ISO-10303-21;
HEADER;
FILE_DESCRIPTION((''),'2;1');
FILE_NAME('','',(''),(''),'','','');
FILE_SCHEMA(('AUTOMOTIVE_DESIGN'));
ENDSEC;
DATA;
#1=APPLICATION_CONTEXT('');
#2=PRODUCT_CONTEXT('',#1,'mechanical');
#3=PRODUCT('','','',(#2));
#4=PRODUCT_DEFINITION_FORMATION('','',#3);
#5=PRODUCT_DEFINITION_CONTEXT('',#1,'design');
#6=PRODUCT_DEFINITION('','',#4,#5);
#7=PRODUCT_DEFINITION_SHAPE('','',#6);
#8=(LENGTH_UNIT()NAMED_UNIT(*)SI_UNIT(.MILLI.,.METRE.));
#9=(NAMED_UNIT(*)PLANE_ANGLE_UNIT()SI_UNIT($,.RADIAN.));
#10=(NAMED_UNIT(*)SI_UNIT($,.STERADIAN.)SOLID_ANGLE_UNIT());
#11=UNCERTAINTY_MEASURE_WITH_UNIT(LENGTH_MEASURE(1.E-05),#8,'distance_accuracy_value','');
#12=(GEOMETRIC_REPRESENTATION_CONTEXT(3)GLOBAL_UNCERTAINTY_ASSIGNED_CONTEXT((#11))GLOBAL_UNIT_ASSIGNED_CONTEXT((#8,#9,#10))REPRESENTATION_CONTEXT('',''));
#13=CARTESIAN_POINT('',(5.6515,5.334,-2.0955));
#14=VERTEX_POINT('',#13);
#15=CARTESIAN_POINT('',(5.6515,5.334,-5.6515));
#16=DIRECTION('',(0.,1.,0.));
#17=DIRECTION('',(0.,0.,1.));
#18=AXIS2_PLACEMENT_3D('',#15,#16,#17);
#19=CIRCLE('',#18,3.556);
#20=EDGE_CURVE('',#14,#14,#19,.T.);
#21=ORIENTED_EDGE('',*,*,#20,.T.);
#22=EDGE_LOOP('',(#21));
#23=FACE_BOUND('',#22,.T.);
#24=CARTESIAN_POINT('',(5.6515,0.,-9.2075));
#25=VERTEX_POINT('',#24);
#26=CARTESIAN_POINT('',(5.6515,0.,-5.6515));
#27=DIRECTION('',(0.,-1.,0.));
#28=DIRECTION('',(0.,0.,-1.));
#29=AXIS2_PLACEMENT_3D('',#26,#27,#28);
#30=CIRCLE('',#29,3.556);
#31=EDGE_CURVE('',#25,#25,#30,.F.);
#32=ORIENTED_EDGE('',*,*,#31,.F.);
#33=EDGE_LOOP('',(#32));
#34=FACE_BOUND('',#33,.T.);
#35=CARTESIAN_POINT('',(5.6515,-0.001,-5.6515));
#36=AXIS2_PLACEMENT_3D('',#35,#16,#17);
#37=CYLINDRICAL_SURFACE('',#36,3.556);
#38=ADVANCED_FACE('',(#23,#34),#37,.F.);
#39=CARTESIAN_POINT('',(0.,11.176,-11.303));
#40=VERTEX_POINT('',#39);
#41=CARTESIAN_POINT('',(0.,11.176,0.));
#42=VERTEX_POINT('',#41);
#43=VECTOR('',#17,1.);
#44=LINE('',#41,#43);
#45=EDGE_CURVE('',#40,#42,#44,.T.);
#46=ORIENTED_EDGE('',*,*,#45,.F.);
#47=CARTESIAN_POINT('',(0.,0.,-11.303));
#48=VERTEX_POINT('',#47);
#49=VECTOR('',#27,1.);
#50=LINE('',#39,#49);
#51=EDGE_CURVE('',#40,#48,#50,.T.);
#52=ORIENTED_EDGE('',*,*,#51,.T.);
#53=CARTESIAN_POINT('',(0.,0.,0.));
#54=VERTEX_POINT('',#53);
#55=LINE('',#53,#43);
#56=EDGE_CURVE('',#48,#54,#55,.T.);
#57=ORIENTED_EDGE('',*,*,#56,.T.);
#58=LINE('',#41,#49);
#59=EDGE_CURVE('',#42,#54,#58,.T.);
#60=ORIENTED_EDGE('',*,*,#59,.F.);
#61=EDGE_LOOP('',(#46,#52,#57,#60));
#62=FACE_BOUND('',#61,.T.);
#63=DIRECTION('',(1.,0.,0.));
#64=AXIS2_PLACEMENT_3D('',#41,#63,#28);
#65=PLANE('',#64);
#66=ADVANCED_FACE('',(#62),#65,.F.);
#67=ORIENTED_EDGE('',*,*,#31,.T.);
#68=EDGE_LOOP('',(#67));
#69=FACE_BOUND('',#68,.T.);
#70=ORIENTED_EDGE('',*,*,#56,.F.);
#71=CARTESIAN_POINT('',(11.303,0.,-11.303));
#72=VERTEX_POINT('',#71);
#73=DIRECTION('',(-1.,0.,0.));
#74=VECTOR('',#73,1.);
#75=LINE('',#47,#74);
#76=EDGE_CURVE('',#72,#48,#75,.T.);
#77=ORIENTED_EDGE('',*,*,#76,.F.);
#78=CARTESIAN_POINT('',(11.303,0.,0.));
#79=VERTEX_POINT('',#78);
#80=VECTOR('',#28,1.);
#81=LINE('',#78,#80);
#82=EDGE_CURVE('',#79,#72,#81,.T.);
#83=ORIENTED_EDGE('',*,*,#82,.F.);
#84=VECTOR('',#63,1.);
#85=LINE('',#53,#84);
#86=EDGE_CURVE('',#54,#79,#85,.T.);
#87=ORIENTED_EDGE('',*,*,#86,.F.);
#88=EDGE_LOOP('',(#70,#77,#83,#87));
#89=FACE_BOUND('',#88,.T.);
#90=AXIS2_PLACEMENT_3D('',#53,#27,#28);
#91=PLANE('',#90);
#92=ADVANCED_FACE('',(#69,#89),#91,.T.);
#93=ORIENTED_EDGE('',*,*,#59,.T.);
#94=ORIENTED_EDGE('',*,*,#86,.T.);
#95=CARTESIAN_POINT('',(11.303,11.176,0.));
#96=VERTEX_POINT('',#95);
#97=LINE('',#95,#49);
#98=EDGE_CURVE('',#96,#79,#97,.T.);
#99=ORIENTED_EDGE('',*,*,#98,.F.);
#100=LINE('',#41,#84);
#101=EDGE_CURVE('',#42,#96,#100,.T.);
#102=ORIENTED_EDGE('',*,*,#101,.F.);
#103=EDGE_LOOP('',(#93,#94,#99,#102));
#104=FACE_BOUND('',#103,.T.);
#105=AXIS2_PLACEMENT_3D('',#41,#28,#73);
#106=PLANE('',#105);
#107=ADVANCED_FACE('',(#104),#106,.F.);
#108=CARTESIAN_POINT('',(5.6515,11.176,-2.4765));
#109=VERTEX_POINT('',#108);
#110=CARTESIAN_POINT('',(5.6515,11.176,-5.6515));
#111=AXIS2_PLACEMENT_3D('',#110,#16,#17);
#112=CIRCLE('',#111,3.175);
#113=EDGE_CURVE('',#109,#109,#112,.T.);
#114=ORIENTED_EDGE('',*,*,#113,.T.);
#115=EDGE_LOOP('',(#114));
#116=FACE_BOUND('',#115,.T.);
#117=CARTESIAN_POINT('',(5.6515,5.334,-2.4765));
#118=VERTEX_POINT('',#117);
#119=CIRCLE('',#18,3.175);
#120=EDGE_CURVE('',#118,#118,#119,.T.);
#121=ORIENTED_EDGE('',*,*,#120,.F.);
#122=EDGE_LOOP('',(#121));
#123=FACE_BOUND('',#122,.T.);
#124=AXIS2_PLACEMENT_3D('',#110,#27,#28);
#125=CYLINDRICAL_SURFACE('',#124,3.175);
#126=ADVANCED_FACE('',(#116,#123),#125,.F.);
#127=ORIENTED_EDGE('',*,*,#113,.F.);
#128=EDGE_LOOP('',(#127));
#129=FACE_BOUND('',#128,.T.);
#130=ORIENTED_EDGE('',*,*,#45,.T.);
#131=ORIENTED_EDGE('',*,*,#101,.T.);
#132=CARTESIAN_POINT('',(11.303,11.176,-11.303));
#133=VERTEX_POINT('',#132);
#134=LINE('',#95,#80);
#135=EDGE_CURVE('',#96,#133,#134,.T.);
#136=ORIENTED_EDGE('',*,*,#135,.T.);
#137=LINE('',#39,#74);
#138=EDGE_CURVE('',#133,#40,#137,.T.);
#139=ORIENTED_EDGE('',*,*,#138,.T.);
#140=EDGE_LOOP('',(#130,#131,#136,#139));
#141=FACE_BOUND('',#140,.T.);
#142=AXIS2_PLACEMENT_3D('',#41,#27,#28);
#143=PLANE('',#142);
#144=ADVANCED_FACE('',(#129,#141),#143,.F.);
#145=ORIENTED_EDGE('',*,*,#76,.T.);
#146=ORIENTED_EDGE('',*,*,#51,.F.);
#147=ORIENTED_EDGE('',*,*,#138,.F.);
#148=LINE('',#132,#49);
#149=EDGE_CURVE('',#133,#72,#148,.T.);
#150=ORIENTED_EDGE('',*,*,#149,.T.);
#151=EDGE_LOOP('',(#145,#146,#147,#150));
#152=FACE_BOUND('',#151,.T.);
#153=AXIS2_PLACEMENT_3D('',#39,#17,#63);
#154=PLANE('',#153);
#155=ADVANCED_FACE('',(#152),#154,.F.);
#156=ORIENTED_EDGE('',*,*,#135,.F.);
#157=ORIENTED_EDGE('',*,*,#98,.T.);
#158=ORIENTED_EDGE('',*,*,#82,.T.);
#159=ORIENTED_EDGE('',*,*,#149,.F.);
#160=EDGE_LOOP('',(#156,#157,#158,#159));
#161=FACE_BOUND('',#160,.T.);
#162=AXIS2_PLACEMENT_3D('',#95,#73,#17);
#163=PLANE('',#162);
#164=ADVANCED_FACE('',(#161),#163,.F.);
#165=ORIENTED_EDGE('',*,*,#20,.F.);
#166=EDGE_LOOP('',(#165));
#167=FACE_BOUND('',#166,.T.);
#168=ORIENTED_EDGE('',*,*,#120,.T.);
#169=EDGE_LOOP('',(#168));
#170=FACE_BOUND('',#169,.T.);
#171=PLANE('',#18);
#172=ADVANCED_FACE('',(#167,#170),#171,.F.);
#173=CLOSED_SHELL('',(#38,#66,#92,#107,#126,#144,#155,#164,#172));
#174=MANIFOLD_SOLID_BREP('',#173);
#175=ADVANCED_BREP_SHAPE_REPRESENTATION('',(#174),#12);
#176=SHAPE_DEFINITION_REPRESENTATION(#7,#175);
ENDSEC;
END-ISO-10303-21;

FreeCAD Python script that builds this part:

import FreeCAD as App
import Part
import Sketcher

V = App.Vector
Q = App.Units.Quantity


def add_polygon(sketch, points):
    """Adds a closed chain of lines whose ends are joined by coincident constraints."""
    first, n = sketch.GeometryCount, len(points)
    for a, b in zip(points, points[1:] + points[:1]):
        sketch.addGeometry(Part.LineSegment(App.Vector(*a, 0), App.Vector(*b, 0)), False)
    for i in range(n):
        sketch.addConstraint(Sketcher.Constraint("Coincident", first + i, 2, first + (i + 1) % n, 1))

doc = App.newDocument("Part")
params = doc.addObject("Spreadsheet::Sheet", "Params")
for row, (alias, value) in enumerate([
    ("sketch1_diameter", "0.25 in"),
    ("sketch1_width", "0.445 in"),
    ("pad1_length", "0.44 in"),
    ("sketch2_diameter", "0.28 in"),
    ("sketch2_diameter2", "0.25 in"),
    ("pocket1_length", "0.21 in"),
], start=1):
    params.set(f"A{row}", alias)
    params.set(f"B{row}", "=" + value)
    params.setAlias(f"B{row}", alias)

body = doc.addObject("PartDesign::Body", "Body")

# Sketch on XZ plane
sketch1 = body.newObject("Sketcher::SketchObject", "Sketch")
sketch1.AttachmentSupport = (doc.getObject("XZ_Plane"), [""])
sketch1.MapMode = "FlatFace"
add_polygon(sketch1, [(0, -11.3), (0, 0), (11.3, 0), (11.3, -11.3)])  # lines 0-3
sketch1.addGeometry(Part.Circle(V(5.7, -5.7, 0), V(0, 0, 1), 3.2), False)  # 4
sketch1.addConstraint([
    Sketcher.Constraint("Vertical", 0),
    Sketcher.Constraint("Horizontal", 1),
    Sketcher.Constraint("Vertical", 2),
    Sketcher.Constraint("Horizontal", 3),
    Sketcher.Constraint("Coincident", 0, 2, -1, 1),
    Sketcher.Constraint("Equal", 3, 0),
    Sketcher.Constraint("Diameter", 4, Q("0.25 in")),
    Sketcher.Constraint("DistanceX", 1, 1, 1, 2, Q("0.445 in")),
    Sketcher.Constraint("DistanceX", -1, 1, 4, 3, Q("0.2225 in")),
    Sketcher.Constraint("DistanceY", 4, 3, -1, 1, Q("0.2225 in")),
])
sketch1.setExpression("Constraints[10]", "Params.sketch1_diameter")
sketch1.setExpression("Constraints[11]", "Params.sketch1_width")
pad1 = body.newObject("PartDesign::Pad", "Pad")
pad1.Profile = sketch1
pad1.setExpression("Length", "Params.pad1_length")
pad1.Reversed = True

# Sketch on XZ plane
sketch2 = body.newObject("Sketcher::SketchObject", "Sketch001")
sketch2.AttachmentSupport = (doc.getObject("XZ_Plane"), [""])
sketch2.MapMode = "FlatFace"
sketch2.AttachmentOffset = App.Placement(V(0, 0, -0.21 * 25.4), App.Rotation())
sketch2.addGeometry([
    Part.Circle(V(5.7, -5.7, 0), V(0, 0, 1), 3.6),
    Part.Circle(V(5.7, -5.7, 0), V(0, 0, 1), 3.2),
], False)
sketch2.addConstraint([
    Sketcher.Constraint("Coincident", 1, 3, 0, 3),
    Sketcher.Constraint("Diameter", 0, Q("0.28 in")),
    Sketcher.Constraint("Diameter", 1, Q("0.25 in")),
    Sketcher.Constraint("DistanceX", -1, 1, 0, 3, Q("0.2225 in")),
    Sketcher.Constraint("DistanceY", 0, 3, -1, 1, Q("0.2225 in")),
])
sketch2.setExpression("Constraints[1]", "Params.sketch2_diameter")
sketch2.setExpression("Constraints[2]", "Params.sketch2_diameter2")
pocket1 = body.newObject("PartDesign::Pocket", "Pocket")
pocket1.Profile = sketch2
pocket1.setExpression("Length", "Params.pocket1_length")
pocket1.Reversed = True

doc.recompute()
